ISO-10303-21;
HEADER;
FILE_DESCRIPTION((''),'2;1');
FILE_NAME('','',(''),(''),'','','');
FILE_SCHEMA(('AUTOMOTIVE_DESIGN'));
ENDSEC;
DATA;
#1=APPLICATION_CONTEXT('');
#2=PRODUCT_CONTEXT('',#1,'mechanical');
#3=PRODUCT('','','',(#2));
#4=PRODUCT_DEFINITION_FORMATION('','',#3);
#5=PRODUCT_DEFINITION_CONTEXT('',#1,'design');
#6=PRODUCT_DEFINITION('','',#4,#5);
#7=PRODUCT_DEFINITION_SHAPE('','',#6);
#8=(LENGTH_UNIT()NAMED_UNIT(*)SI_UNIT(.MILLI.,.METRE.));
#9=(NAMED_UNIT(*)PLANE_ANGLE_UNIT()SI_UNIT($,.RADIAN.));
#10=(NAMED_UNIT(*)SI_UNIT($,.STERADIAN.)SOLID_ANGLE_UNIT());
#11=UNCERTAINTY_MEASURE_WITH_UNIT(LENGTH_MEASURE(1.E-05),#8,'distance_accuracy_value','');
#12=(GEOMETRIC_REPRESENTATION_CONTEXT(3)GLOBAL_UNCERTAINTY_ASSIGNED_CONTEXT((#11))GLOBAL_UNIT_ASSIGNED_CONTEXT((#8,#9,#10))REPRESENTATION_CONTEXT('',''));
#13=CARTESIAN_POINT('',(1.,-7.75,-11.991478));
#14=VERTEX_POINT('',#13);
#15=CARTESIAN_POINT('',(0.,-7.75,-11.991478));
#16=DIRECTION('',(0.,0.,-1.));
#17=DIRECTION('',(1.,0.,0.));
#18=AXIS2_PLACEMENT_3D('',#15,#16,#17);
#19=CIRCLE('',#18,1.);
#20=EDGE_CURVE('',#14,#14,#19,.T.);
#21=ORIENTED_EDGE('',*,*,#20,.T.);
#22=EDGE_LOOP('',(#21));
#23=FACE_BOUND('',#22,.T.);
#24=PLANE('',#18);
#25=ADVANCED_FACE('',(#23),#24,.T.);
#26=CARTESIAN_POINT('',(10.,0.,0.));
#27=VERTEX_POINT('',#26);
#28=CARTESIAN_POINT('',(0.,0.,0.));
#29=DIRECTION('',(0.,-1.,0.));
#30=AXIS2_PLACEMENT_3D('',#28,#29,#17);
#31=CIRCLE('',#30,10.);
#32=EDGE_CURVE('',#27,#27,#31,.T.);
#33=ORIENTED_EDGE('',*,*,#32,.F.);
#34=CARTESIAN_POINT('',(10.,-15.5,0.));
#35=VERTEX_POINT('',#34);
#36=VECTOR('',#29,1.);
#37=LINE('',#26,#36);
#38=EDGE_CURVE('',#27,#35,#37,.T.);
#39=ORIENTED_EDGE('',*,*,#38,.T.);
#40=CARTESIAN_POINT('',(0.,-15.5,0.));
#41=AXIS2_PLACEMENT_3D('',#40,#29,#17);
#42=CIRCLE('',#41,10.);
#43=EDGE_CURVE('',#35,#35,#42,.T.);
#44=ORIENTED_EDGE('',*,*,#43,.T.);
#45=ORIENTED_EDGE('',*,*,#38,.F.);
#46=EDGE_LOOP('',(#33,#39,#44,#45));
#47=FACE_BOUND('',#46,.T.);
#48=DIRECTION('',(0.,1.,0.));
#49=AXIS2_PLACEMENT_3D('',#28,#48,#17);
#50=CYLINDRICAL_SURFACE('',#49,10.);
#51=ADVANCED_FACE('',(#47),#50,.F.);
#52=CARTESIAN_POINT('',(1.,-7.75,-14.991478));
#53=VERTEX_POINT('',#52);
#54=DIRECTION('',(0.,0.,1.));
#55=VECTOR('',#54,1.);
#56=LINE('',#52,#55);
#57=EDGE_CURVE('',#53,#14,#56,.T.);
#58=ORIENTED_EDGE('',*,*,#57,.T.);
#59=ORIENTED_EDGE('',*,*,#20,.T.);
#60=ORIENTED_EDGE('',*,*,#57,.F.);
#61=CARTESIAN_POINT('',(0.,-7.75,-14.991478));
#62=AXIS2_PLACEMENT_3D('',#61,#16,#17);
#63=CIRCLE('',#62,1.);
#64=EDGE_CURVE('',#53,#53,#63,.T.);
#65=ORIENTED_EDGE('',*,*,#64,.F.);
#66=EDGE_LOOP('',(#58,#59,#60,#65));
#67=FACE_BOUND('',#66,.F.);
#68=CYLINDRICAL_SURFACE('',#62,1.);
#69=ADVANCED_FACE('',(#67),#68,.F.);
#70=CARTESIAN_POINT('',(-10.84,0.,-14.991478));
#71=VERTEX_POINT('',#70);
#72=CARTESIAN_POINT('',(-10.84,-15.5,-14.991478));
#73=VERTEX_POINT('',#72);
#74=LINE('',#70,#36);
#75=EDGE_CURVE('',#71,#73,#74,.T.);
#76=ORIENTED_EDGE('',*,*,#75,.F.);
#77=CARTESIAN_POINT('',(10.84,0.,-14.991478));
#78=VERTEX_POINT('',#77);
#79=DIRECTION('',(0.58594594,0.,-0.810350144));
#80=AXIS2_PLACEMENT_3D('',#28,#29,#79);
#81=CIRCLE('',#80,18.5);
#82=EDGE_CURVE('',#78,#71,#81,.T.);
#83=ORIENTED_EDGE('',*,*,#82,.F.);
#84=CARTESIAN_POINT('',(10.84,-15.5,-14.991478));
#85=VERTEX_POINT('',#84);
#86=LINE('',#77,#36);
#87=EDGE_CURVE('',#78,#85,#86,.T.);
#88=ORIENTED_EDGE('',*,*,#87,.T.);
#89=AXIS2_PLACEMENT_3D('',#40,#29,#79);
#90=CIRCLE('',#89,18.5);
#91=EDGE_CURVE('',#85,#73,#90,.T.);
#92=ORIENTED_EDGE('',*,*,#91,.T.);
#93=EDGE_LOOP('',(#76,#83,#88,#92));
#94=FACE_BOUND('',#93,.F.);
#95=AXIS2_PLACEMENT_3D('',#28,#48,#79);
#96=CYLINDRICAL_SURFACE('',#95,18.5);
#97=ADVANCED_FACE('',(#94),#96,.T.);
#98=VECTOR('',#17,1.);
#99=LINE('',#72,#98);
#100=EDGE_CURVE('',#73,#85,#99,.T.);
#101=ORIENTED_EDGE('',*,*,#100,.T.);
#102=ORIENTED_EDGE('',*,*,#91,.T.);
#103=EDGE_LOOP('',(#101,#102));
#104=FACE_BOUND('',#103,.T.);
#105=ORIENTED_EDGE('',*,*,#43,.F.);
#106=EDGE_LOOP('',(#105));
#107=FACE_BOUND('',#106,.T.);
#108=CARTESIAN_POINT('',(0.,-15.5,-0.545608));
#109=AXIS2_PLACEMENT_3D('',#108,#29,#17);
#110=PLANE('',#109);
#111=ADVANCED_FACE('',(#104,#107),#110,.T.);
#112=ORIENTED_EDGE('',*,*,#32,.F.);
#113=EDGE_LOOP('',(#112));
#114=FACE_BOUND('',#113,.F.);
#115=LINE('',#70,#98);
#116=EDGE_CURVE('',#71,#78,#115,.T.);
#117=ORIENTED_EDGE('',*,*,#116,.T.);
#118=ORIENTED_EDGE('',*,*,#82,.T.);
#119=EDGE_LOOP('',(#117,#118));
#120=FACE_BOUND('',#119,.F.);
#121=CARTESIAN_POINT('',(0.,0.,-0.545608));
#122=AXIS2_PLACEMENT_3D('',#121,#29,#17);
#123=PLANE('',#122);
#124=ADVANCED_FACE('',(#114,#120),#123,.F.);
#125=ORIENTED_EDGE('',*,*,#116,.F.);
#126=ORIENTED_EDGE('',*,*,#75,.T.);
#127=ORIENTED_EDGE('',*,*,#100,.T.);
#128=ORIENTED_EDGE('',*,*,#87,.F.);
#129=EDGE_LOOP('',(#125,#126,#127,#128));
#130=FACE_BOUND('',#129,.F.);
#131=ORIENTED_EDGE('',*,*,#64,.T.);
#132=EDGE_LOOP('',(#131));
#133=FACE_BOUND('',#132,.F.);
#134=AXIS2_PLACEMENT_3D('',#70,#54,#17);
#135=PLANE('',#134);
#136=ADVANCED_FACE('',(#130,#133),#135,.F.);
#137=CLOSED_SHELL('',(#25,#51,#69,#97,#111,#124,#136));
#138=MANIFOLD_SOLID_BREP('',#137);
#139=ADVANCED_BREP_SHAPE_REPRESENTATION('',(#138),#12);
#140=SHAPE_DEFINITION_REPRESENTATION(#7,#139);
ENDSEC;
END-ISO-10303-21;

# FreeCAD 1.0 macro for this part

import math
import FreeCAD as App
import Part
import Sketcher
from FreeCAD import Vector

doc = App.newDocument("Part")
params = doc.addObject("Spreadsheet::Sheet", "Params")
for row, (alias, value) in enumerate([
    ("sketch1_diameter", "20 mm"),
    ("sketch1_radius", "18.5 mm"),
    ("sketch1_width", "21.68 mm"),
    ("pad1_length", "15.5 mm"),
    ("sketch2_diameter", "2 mm"),
    ("pocket1_length", "3 mm"),
], start=1):
    params.set(f"A{row}", alias)
    params.set(f"B{row}", "=" + value)
    params.setAlias(f"B{row}", alias)

body = doc.addObject("PartDesign::Body", "Body")

sketch1 = doc.addObject("Sketcher::SketchObject", "Sketch")
body.addObject(sketch1)
sketch1.AttachmentSupport = (doc.XZ_Plane, [""])
sketch1.MapMode = "FlatFace"
sketch1.addGeometry(Part.LineSegment(Vector(-11, -15, 0), Vector(11, -15, 0)), False)
sketch1.addGeometry(Part.ArcOfCircle(Part.Circle(Vector(0, 0, 0), Vector(0, 0, 1), 19), math.radians(-54), math.radians(234)), False)
sketch1.addGeometry(Part.Circle(Vector(0, 0, 0), Vector(0, 0, 1), 10), False)
sketch1.addConstraint(Sketcher.Constraint("Coincident", 0, 1, 1, 2))
sketch1.addConstraint(Sketcher.Constraint("Coincident", 1, 1, 0, 2))
sketch1.addConstraint(Sketcher.Constraint("Horizontal", 0))
sketch1.addConstraint(Sketcher.Constraint("Coincident", 1, 3, -1, 1))
sketch1.addConstraint(Sketcher.Constraint("Coincident", 2, 3, -1, 1))
sketch1.addConstraint(Sketcher.Constraint("Diameter", 2, 20.0))
sketch1.addConstraint(Sketcher.Constraint("Radius", 1, 18.5))
sketch1.addConstraint(Sketcher.Constraint("DistanceX", 0, 1, 0, 2, 21.68))
sketch1.setExpression("Constraints[5]", "Params.sketch1_diameter")
sketch1.setExpression("Constraints[6]", "Params.sketch1_radius")
sketch1.setExpression("Constraints[7]", "Params.sketch1_width")
pad1 = doc.addObject("PartDesign::Pad", "Pad")
body.addObject(pad1)
pad1.Profile = sketch1
pad1.setExpression("Length", "Params.pad1_length")

sketch2 = doc.addObject("Sketcher::SketchObject", "Sketch001")
body.addObject(sketch2)
sketch2.AttachmentSupport = (doc.XY_Plane, [""])
sketch2.MapMode = "FlatFace"
sketch2.AttachmentOffset = App.Placement(Vector(0, 0, -14.991478), App.Rotation())
sketch2.addGeometry(Part.Circle(Vector(0, -7.8, 0), Vector(0, 0, 1), 1), False)
sketch2.addConstraint(Sketcher.Constraint("PointOnObject", 0, 3, -2))
sketch2.addConstraint(Sketcher.Constraint("Diameter", 0, 2.0))
sketch2.addConstraint(Sketcher.Constraint("DistanceY", 0, 3, -1, 1, 7.75))
sketch2.setExpression("Constraints[1]", "Params.sketch2_diameter")
pocket1 = doc.addObject("PartDesign::Pocket", "Pocket")
body.addObject(pocket1)
pocket1.Profile = sketch2
pocket1.setExpression("Length", "Params.pocket1_length")
pocket1.Reversed = True

doc.recompute()
